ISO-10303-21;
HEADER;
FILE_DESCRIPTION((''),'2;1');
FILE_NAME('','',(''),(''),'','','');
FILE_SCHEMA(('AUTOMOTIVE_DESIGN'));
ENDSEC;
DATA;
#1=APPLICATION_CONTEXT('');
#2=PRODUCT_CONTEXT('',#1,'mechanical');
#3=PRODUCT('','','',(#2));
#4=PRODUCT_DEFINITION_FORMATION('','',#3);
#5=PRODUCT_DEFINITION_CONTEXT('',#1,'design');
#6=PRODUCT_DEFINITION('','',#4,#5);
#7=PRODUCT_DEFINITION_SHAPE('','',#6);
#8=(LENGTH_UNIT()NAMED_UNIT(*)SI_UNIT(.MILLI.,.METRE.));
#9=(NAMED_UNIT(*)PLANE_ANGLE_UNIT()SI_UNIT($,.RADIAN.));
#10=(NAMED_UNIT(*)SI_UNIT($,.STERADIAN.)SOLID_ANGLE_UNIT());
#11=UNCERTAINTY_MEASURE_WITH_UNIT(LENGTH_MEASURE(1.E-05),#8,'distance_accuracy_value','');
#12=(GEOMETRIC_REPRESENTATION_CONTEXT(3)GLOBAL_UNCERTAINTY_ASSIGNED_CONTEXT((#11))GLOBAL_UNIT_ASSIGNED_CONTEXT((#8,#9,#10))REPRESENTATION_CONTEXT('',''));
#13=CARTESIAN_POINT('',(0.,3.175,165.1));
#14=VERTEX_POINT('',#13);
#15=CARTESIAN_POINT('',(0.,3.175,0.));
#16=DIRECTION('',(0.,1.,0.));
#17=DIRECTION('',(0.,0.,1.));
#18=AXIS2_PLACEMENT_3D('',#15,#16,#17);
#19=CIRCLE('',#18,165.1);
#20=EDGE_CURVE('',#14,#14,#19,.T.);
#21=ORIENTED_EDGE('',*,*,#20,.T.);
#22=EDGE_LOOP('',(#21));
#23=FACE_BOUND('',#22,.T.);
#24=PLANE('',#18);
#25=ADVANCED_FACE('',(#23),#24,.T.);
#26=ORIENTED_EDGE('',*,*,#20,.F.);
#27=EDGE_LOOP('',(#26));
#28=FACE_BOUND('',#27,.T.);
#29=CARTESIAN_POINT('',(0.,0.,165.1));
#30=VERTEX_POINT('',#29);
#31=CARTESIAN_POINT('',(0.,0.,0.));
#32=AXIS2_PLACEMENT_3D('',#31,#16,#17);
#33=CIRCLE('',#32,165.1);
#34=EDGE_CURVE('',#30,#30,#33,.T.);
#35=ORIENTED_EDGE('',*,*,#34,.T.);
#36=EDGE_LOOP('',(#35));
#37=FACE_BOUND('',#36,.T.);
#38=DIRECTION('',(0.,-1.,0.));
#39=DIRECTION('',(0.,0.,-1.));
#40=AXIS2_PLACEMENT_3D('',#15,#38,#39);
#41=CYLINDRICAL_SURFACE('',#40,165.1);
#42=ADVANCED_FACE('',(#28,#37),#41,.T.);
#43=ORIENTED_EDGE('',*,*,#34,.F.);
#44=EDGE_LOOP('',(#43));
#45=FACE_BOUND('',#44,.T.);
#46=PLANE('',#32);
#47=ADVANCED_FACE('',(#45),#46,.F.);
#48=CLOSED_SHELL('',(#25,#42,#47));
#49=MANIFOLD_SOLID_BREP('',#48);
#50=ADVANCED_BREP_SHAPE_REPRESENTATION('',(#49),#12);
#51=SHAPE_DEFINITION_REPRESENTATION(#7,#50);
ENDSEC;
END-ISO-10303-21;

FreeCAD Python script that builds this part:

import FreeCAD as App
import Part
import Sketcher
Q = App.Units.Quantity

doc = App.newDocument("Part")
body = doc.addObject("PartDesign::Body", "Body")

# Sketch on XZ plane
sketch1 = body.newObject("Sketcher::SketchObject", "Sketch")
sketch1.AttachmentSupport = (doc.getObject("XZ_Plane"), [""])
sketch1.MapMode = "FlatFace"
sketch1.addGeometry(Part.Circle(App.Vector(0, 0, 0), App.Vector(0, 0, 1), 165.1), False)
sketch1.addConstraint(Sketcher.Constraint("Coincident", 0, 3, -1, 1))
sketch1.addConstraint(Sketcher.Constraint("Diameter", 0, Q("13 in")))
pad1 = body.newObject("PartDesign::Pad", "Pad")
pad1.Profile = sketch1
pad1.Length = Q("0.125 in")
pad1.Reversed = True

doc.recompute()
